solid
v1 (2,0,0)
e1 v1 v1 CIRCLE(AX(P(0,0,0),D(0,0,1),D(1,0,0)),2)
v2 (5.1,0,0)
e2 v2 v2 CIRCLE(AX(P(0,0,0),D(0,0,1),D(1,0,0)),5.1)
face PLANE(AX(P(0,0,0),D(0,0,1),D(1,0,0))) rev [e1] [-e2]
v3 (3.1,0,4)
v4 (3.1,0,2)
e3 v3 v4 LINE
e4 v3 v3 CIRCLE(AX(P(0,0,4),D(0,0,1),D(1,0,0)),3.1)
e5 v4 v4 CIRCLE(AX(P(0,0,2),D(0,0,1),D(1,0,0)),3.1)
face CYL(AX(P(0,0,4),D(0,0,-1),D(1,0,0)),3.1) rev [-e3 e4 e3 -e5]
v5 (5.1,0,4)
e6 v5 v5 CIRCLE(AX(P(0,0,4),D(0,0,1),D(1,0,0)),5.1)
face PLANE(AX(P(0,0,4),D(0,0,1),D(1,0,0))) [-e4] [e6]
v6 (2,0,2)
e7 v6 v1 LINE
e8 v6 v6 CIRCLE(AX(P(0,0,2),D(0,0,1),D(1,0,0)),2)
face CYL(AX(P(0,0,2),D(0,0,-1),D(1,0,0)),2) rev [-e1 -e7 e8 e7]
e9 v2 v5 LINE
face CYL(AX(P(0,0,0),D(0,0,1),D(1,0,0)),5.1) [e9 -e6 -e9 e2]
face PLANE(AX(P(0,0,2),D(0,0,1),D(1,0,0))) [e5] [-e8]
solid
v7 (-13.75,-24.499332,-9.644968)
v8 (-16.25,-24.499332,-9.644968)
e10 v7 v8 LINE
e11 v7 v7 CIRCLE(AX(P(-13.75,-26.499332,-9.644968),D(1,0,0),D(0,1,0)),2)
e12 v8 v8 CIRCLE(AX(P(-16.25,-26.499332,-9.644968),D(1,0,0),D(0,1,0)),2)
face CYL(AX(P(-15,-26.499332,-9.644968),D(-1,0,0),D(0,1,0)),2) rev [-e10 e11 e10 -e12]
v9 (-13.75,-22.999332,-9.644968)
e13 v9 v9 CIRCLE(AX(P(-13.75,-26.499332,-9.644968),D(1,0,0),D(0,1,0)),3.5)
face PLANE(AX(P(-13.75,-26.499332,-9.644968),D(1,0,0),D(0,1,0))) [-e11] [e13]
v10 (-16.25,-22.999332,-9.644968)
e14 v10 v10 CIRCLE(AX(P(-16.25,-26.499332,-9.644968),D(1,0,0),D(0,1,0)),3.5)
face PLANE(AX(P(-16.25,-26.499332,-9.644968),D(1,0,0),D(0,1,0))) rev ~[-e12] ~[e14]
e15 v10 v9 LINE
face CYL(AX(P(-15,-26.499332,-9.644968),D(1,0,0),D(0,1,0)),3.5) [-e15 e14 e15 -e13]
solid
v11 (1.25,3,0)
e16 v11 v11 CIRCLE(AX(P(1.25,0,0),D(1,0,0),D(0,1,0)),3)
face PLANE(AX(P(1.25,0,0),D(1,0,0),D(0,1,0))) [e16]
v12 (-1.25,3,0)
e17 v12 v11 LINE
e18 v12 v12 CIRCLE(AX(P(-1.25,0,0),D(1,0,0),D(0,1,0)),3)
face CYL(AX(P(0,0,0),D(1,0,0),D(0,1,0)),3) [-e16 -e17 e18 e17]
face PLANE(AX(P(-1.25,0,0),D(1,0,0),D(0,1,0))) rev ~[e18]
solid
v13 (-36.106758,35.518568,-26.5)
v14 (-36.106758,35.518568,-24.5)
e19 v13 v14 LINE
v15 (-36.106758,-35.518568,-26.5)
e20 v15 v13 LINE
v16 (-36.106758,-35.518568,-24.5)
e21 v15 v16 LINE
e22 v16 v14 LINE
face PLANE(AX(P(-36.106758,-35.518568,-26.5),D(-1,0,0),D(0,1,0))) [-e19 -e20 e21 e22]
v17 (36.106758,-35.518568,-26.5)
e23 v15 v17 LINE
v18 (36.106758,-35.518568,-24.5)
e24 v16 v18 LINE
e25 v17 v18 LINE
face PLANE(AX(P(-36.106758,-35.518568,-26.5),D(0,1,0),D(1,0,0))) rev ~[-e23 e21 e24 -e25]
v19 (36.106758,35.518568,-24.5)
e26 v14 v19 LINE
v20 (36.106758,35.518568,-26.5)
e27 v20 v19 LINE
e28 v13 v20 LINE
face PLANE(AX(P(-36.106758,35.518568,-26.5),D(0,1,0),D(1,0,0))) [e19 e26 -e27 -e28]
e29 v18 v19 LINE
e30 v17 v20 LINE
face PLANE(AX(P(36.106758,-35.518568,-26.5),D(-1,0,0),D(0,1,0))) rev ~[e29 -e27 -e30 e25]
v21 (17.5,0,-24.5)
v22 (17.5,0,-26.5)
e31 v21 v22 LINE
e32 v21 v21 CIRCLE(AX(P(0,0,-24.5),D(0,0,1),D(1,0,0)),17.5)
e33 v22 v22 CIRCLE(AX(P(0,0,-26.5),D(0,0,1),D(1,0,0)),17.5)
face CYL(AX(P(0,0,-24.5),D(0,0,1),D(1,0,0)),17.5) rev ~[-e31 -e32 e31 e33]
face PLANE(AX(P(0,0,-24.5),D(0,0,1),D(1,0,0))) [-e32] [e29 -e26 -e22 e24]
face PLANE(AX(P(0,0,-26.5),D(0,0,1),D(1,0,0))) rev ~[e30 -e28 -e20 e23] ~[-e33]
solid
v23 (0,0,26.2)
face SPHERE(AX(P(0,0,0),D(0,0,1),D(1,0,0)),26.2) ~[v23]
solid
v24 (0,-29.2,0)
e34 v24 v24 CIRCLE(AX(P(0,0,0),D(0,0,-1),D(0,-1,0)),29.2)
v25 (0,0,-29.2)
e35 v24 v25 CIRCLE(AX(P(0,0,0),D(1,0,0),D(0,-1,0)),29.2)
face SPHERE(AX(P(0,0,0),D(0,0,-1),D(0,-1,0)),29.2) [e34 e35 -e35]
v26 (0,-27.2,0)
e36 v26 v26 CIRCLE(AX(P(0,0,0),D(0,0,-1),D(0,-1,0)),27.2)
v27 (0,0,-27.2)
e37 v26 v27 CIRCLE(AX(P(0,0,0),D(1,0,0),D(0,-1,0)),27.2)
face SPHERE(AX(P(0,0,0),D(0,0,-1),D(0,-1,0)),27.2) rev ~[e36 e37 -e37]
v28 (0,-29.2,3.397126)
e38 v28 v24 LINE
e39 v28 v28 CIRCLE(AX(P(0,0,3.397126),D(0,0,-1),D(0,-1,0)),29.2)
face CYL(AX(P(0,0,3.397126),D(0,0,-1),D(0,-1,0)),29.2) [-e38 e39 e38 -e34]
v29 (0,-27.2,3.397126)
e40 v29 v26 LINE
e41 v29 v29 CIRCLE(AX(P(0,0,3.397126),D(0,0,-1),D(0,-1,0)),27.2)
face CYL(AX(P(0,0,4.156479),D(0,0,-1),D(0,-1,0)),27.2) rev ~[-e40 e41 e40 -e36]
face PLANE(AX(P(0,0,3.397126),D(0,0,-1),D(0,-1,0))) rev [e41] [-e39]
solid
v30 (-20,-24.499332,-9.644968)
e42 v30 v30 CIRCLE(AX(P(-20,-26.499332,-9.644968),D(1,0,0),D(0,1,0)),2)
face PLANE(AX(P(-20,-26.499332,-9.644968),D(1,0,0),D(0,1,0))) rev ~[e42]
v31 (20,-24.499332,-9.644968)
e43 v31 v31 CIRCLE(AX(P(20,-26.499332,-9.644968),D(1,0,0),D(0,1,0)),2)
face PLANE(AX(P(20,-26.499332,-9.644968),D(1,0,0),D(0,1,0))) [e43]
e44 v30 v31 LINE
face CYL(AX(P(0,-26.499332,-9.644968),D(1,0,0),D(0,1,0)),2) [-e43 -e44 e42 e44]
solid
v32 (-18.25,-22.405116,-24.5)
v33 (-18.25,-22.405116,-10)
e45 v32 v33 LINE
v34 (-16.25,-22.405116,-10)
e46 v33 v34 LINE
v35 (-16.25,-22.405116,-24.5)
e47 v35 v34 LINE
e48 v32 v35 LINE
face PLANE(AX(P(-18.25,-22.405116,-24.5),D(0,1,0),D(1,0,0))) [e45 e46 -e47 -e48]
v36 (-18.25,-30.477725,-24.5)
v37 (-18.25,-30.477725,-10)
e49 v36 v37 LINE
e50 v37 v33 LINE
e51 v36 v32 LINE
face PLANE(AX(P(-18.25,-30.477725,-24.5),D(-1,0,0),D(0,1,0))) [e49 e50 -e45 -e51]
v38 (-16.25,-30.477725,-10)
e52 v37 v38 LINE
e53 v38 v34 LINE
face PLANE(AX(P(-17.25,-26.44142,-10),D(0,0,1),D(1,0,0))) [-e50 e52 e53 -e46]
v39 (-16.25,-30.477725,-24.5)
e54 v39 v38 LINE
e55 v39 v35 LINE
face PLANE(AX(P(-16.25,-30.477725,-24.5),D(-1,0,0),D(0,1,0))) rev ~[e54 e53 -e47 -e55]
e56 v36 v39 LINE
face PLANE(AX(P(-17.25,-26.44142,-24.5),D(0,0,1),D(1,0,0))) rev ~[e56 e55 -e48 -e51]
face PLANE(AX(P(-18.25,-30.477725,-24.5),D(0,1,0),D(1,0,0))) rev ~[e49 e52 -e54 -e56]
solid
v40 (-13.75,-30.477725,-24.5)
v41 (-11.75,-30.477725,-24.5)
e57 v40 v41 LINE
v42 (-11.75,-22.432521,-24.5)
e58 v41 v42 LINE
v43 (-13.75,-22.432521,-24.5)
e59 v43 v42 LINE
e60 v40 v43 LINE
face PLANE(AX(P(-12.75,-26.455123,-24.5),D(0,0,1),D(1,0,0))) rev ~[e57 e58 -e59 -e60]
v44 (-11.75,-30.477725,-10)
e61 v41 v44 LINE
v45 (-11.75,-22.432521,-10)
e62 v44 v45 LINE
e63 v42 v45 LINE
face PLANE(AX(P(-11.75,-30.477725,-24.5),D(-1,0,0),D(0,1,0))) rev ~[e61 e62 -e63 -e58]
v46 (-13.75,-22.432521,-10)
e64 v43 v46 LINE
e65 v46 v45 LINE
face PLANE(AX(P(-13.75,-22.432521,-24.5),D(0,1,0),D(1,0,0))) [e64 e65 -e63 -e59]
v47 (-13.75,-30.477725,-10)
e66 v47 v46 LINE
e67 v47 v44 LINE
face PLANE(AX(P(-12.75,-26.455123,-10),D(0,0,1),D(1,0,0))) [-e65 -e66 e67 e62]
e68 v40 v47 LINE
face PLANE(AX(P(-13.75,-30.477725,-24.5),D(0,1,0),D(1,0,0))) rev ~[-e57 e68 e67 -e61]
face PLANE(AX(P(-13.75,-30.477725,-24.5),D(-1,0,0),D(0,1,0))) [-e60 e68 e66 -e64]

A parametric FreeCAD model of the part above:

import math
import FreeCAD as App
import Part
import Sketcher
from FreeCAD import Vector

doc = App.newDocument("Part")
body = doc.addObject("PartDesign::Body", "Body")

sketch1 = doc.addObject("Sketcher::SketchObject", "Sketch")
body.addObject(sketch1)
sketch1.AttachmentSupport = (doc.XZ_Plane, [""])
sketch1.MapMode = "FlatFace"
sketch1.addGeometry(Part.LineSegment(Vector(0, 26, 0), Vector(0, -26, 0)), False)
sketch1.addGeometry(Part.ArcOfCircle(Part.Circle(Vector(0, 0, 0), Vector(0, 0, 1), 26), math.radians(-90), math.radians(90)), False)
sketch1.addConstraint(Sketcher.Constraint("Coincident", 0, 1, 1, 2))
sketch1.addConstraint(Sketcher.Constraint("Coincident", 1, 1, 0, 2))
sketch1.addConstraint(Sketcher.Constraint("Vertical", 0))
sketch1.addConstraint(Sketcher.Constraint("Coincident", 1, 3, -1, 1))
sketch1.addConstraint(Sketcher.Constraint("PointOnObject", 0, 1, -2))
sketch1.addConstraint(Sketcher.Constraint("Radius", 1, 26.2))
revolution = doc.addObject("PartDesign::Revolution", "Revolution")
body.addObject(revolution)
revolution.Profile = sketch1
revolution.ReferenceAxis = (sketch1, ["V_Axis"])
revolution.Angle = 360
body2 = doc.addObject("PartDesign::Body", "Body001")

sketch2 = doc.addObject("Sketcher::SketchObject", "Sketch001")
body2.addObject(sketch2)
sketch2.AttachmentSupport = (doc.getObject("XY_Plane001"), [""])
sketch2.MapMode = "FlatFace"
sketch2.addGeometry(Part.LineSegment(Vector(-36, 36, 0), Vector(-36, -36, 0)), False)
sketch2.addGeometry(Part.LineSegment(Vector(-36, -36, 0), Vector(36, -36, 0)), False)
sketch2.addGeometry(Part.LineSegment(Vector(36, -36, 0), Vector(36, 36, 0)), False)
sketch2.addGeometry(Part.LineSegment(Vector(36, 36, 0), Vector(-36, 36, 0)), False)
sketch2.addConstraint(Sketcher.Constraint("Coincident", 0, 2, 1, 1))
sketch2.addConstraint(Sketcher.Constraint("Coincident", 1, 2, 2, 1))
sketch2.addConstraint(Sketcher.Constraint("Coincident", 2, 2, 3, 1))
sketch2.addConstraint(Sketcher.Constraint("Coincident", 3, 2, 0, 1))
sketch2.addConstraint(Sketcher.Constraint("Vertical", 0))
sketch2.addConstraint(Sketcher.Constraint("Horizontal", 1))
sketch2.addConstraint(Sketcher.Constraint("Vertical", 2))
sketch2.addConstraint(Sketcher.Constraint("Horizontal", 3))
sketch2.addConstraint(Sketcher.Constraint("Symmetric", 0, 2, 2, 2, -1, 1))
sketch2.addConstraint(Sketcher.Constraint("DistanceX", 1, 1, 1, 2, 72.213516))
sketch2.addConstraint(Sketcher.Constraint("DistanceY", 0, 2, 0, 1, 71.037136))
pad1 = doc.addObject("PartDesign::Pad", "Pad")
body2.addObject(pad1)
pad1.Profile = sketch2
pad1.Length = 2

sketch3 = doc.addObject("Sketcher::SketchObject", "Sketch002")
body2.addObject(sketch3)
sketch3.AttachmentSupport = (doc.getObject("XY_Plane001"), [""])
sketch3.MapMode = "FlatFace"
sketch3.AttachmentOffset = App.Placement(Vector(0, 0, 2), App.Rotation())
sketch3.addGeometry(Part.Circle(Vector(0, 0, 0), Vector(0, 0, 1), 18), False)
sketch3.addConstraint(Sketcher.Constraint("Coincident", 0, 3, -1, 1))
sketch3.addConstraint(Sketcher.Constraint("Diameter", 0, 35.0))
pocket1 = doc.addObject("PartDesign::Pocket", "Pocket")
body2.addObject(pocket1)
pocket1.Profile = sketch3
pocket1.Length = 25
body3 = doc.addObject("PartDesign::Body", "Body002")
doc.recompute()

body2.Placement = App.Placement(Vector(0, 0, -26.5), App.Rotation(Vector(0, 0, 1), 0))
boolean = doc.addObject("PartDesign::Boolean", "Boolean")
body3.addObject(boolean)
boolean.Type = "Fuse"
boolean.addObjects([body2])
body4 = doc.addObject("PartDesign::Body", "Body003")

sketch4 = doc.addObject("Sketcher::SketchObject", "Sketch003")
body4.addObject(sketch4)
sketch4.AttachmentSupport = (doc.getObject("YZ_Plane003"), [""])
sketch4.MapMode = "FlatFace"
sketch4.addGeometry(Part.Circle(Vector(0, 0, 0), Vector(0, 0, 1), 3.5), False)
sketch4.addGeometry(Part.Circle(Vector(0, 0, 0), Vector(0, 0, 1), 2), False)
sketch4.addConstraint(Sketcher.Constraint("Coincident", 0, 3, -1, 1))
sketch4.addConstraint(Sketcher.Constraint("Coincident", 1, 3, -1, 1))
sketch4.addConstraint(Sketcher.Constraint("Diameter", 0, 7.0))
sketch4.addConstraint(Sketcher.Constraint("Diameter", 1, 4.0))
pad2 = doc.addObject("PartDesign::Pad", "Pad001")
body4.addObject(pad2)
pad2.Profile = sketch4
pad2.Length = 2.5
pad2.Midplane = True
body5 = doc.addObject("PartDesign::Body", "Body004")

sketch5 = doc.addObject("Sketcher::SketchObject", "Sketch004")
body5.addObject(sketch5)
sketch5.AttachmentSupport = (doc.getObject("YZ_Plane004"), [""])
sketch5.MapMode = "FlatFace"
sketch5.addGeometry(Part.Circle(Vector(0, 0, 0), Vector(0, 0, 1), 2), False)
sketch5.addConstraint(Sketcher.Constraint("Coincident", 0, 3, -1, 1))
sketch5.addConstraint(Sketcher.Constraint("Diameter", 0, 4.0))
pad3 = doc.addObject("PartDesign::Pad", "Pad002")
body5.addObject(pad3)
pad3.Profile = sketch5
pad3.Length = 40
pad3.Midplane = True
body6 = doc.addObject("PartDesign::Body", "Body005")
doc.recompute()

body4.Placement = App.Placement(Vector(0, -26.499332, -9.644968), App.Rotation(Vector(0, 0, 1), 0))
boolean2 = doc.addObject("PartDesign::Boolean", "Boolean001")
body6.addObject(boolean2)
boolean2.Type = "Fuse"
boolean2.addObjects([body4])
body7 = doc.addObject("PartDesign::Body", "Body006")
doc.recompute()

body5.Placement = App.Placement(Vector(0, -26.499332, -9.644968), App.Rotation(Vector(0, 0, 1), 0))
boolean3 = doc.addObject("PartDesign::Boolean", "Boolean002")
body7.addObject(boolean3)
boolean3.Type = "Fuse"
boolean3.addObjects([body5])
body8 = doc.addObject("PartDesign::Body", "Body007")
doc.recompute()

body6.Placement = App.Placement(Vector(-15, 0, 0), App.Rotation(Vector(0, 0, 1), 0))
boolean4 = doc.addObject("PartDesign::Boolean", "Boolean003")
body8.addObject(boolean4)
boolean4.Type = "Fuse"
boolean4.addObjects([body6])
body9 = doc.addObject("PartDesign::Body", "Body008")

sketch6 = doc.addObject("Sketcher::SketchObject", "Sketch005")
body9.addObject(sketch6)
sketch6.AttachmentSupport = (doc.getObject("YZ_Plane008"), [""])
sketch6.MapMode = "FlatFace"
sketch6.addGeometry(Part.Circle(Vector(0, 0, 0), Vector(0, 0, 1), 3), False)
sketch6.addConstraint(Sketcher.Constraint("Coincident", 0, 3, -1, 1))
sketch6.addConstraint(Sketcher.Constraint("Diameter", 0, 6.0))
pad4 = doc.addObject("PartDesign::Pad", "Pad003")
body9.addObject(pad4)
pad4.Profile = sketch6
pad4.Length = 2.5
pad4.Midplane = True
body10 = doc.addObject("PartDesign::Body", "Body009")

sketch7 = doc.addObject("Sketcher::SketchObject", "Sketch006")
body10.addObject(sketch7)
sketch7.AttachmentSupport = (doc.getObject("XZ_Plane009"), [""])
sketch7.MapMode = "FlatFace"
sketch7.addGeometry(Part.LineSegment(Vector(5.1, 0, 0), Vector(5.1, 4, 0)), False)
sketch7.addGeometry(Part.LineSegment(Vector(5.1, 4, 0), Vector(3.1, 4, 0)), False)
sketch7.addGeometry(Part.LineSegment(Vector(3.1, 4, 0), Vector(3.1, 2, 0)), False)
sketch7.addGeometry(Part.LineSegment(Vector(3.1, 2, 0), Vector(2, 2, 0)), False)
sketch7.addGeometry(Part.LineSegment(Vector(2, 2, 0), Vector(2, 0, 0)), False)
sketch7.addGeometry(Part.LineSegment(Vector(2, 0, 0), Vector(5.1, 0, 0)), False)
sketch7.addConstraint(Sketcher.Constraint("Coincident", 0, 2, 1, 1))
sketch7.addConstraint(Sketcher.Constraint("Coincident", 1, 2, 2, 1))
sketch7.addConstraint(Sketcher.Constraint("Coincident", 2, 2, 3, 1))
sketch7.addConstraint(Sketcher.Constraint("Coincident", 3, 2, 4, 1))
sketch7.addConstraint(Sketcher.Constraint("Coincident", 4, 2, 5, 1))
sketch7.addConstraint(Sketcher.Constraint("Coincident", 5, 2, 0, 1))
sketch7.addConstraint(Sketcher.Constraint("Vertical", 0))
sketch7.addConstraint(Sketcher.Constraint("Horizontal", 1))
sketch7.addConstraint(Sketcher.Constraint("Vertical", 2))
sketch7.addConstraint(Sketcher.Constraint("Horizontal", 3))
sketch7.addConstraint(Sketcher.Constraint("Vertical", 4))
sketch7.addConstraint(Sketcher.Constraint("Horizontal", 5))
sketch7.addConstraint(Sketcher.Constraint("PointOnObject", 4, 2, -1))
sketch7.addConstraint(Sketcher.Constraint("Equal", 1, 2))
sketch7.addConstraint(Sketcher.Constraint("Equal", 2, 4))
sketch7.addConstraint(Sketcher.Constraint("DistanceX", 1, 2, 1, 1, 2.0))
sketch7.addConstraint(Sketcher.Constraint("DistanceX", 3, 2, 3, 1, 1.1))
sketch7.addConstraint(Sketcher.Constraint("DistanceX", -1, 1, 3, 2, 2.0))
revolution2 = doc.addObject("PartDesign::Revolution", "Revolution001")
body10.addObject(revolution2)
revolution2.Profile = sketch7
revolution2.ReferenceAxis = (sketch7, ["V_Axis"])
revolution2.Angle = 360
body11 = doc.addObject("PartDesign::Body", "Body010")

sketch8 = doc.addObject("Sketcher::SketchObject", "Sketch007")
body11.addObject(sketch8)
sketch8.AttachmentSupport = (doc.getObject("YZ_Plane010"), [""])
sketch8.MapMode = "FlatFace"
sketch8.addGeometry(Part.LineSegment(Vector(0, -29.2, 0), Vector(0, 3.4, 0)), False)
sketch8.addGeometry(Part.LineSegment(Vector(0, 3.4, 0), Vector(-29.2, 3.4, 0)), False)
sketch8.addGeometry(Part.LineSegment(Vector(-29.2, 3.4, 0), Vector(-29.2, 0, 0)), False)
sketch8.addGeometry(Part.ArcOfCircle(Part.Circle(Vector(0, 0, 0), Vector(0, 0, 1), 29.2), math.radians(180), math.radians(270)), False)
sketch8.addConstraint(Sketcher.Constraint("Coincident", 0, 2, 1, 1))
sketch8.addConstraint(Sketcher.Constraint("Coincident", 1, 2, 2, 1))
sketch8.addConstraint(Sketcher.Constraint("Tangent", 2, 2, 3, 1))
sketch8.addConstraint(Sketcher.Constraint("Coincident", 3, 2, 0, 1))
sketch8.addConstraint(Sketcher.Constraint("Vertical", 0))
sketch8.addConstraint(Sketcher.Constraint("Horizontal", 1))
sketch8.addConstraint(Sketcher.Constraint("Vertical", 2))
sketch8.addConstraint(Sketcher.Constraint("Coincident", 3, 3, -1, 1))
sketch8.addConstraint(Sketcher.Constraint("PointOnObject", 0, 2, -2))
sketch8.addConstraint(Sketcher.Constraint("Radius", 3, 29.2))
sketch8.addConstraint(Sketcher.Constraint("DistanceY", 0, 1, 0, 2, 32.597126))
revolution3 = doc.addObject("PartDesign::Revolution", "Revolution002")
body11.addObject(revolution3)
revolution3.Profile = sketch8
revolution3.ReferenceAxis = (sketch8, ["V_Axis"])
revolution3.Angle = 360

sketch9 = doc.addObject("Sketcher::SketchObject", "Sketch008")
body11.addObject(sketch9)
sketch9.AttachmentSupport = (doc.getObject("YZ_Plane010"), [""])
sketch9.MapMode = "FlatFace"
sketch9.addGeometry(Part.LineSegment(Vector(0, -27.2, 0), Vector(0, 4.2, 0)), False)
sketch9.addGeometry(Part.LineSegment(Vector(0, 4.2, 0), Vector(-27.2, 4.2, 0)), False)
sketch9.addGeometry(Part.LineSegment(Vector(-27.2, 4.2, 0), Vector(-27.2, 0, 0)), False)
sketch9.addGeometry(Part.ArcOfCircle(Part.Circle(Vector(0, 0, 0), Vector(0, 0, 1), 27.2), math.radians(180), math.radians(270)), False)
sketch9.addConstraint(Sketcher.Constraint("Coincident", 0, 2, 1, 1))
sketch9.addConstraint(Sketcher.Constraint("Coincident", 1, 2, 2, 1))
sketch9.addConstraint(Sketcher.Constraint("Tangent", 2, 2, 3, 1))
sketch9.addConstraint(Sketcher.Constraint("Coincident", 3, 2, 0, 1))
sketch9.addConstraint(Sketcher.Constraint("Vertical", 0))
sketch9.addConstraint(Sketcher.Constraint("Horizontal", 1))
sketch9.addConstraint(Sketcher.Constraint("Vertical", 2))
sketch9.addConstraint(Sketcher.Constraint("Coincident", 3, 3, -1, 1))
sketch9.addConstraint(Sketcher.Constraint("PointOnObject", 0, 2, -2))
sketch9.addConstraint(Sketcher.Constraint("Radius", 3, 27.2))
sketch9.addConstraint(Sketcher.Constraint("DistanceY", 0, 1, 0, 2, 31.356479))
groove = doc.addObject("PartDesign::Groove", "Groove")
body11.addObject(groove)
groove.Profile = sketch9
groove.ReferenceAxis = (sketch9, ["V_Axis"])
groove.Angle = 360
body12 = doc.addObject("PartDesign::Body", "Body011")

sketch10 = doc.addObject("Sketcher::SketchObject", "Sketch009")
body12.addObject(sketch10)
sketch10.AttachmentSupport = (doc.getObject("XY_Plane011"), [""])
sketch10.MapMode = "FlatFace"
sketch10.AttachmentOffset = App.Placement(Vector(0, 0, -24.5), App.Rotation())
sketch10.addGeometry(Part.LineSegment(Vector(-13.8, -22.4, 0), Vector(-13.8, -30.5, 0)), False)
sketch10.addGeometry(Part.LineSegment(Vector(-13.8, -30.5, 0), Vector(-11.8, -30.5, 0)), False)
sketch10.addGeometry(Part.LineSegment(Vector(-11.8, -30.5, 0), Vector(-11.8, -22.4, 0)), False)
sketch10.addGeometry(Part.LineSegment(Vector(-11.8, -22.4, 0), Vector(-13.8, -22.4, 0)), False)
sketch10.addConstraint(Sketcher.Constraint("Coincident", 0, 2, 1, 1))
sketch10.addConstraint(Sketcher.Constraint("Coincident", 1, 2, 2, 1))
sketch10.addConstraint(Sketcher.Constraint("Coincident", 2, 2, 3, 1))
sketch10.addConstraint(Sketcher.Constraint("Coincident", 3, 2, 0, 1))
sketch10.addConstraint(Sketcher.Constraint("Vertical", 0))
sketch10.addConstraint(Sketcher.Constraint("Horizontal", 1))
sketch10.addConstraint(Sketcher.Constraint("Vertical", 2))
sketch10.addConstraint(Sketcher.Constraint("Horizontal", 3))
sketch10.addConstraint(Sketcher.Constraint("DistanceX", 1, 1, 1, 2, 2.0))
sketch10.addConstraint(Sketcher.Constraint("DistanceX", 0, 2, -1, 1, 13.75))
sketch10.addConstraint(Sketcher.Constraint("DistanceY", 0, 2, 0, 1, 8.045204))
sketch10.addConstraint(Sketcher.Constraint("DistanceY", 2, 2, -1, 1, 22.432521))
pad5 = doc.addObject("PartDesign::Pad", "Pad004")
body12.addObject(pad5)
pad5.Profile = sketch10
pad5.Length = 14.5
body13 = doc.addObject("PartDesign::Body", "Body012")

sketch11 = doc.addObject("Sketcher::SketchObject", "Sketch010")
body13.addObject(sketch11)
sketch11.AttachmentSupport = (doc.getObject("XY_Plane012"), [""])
sketch11.MapMode = "FlatFace"
sketch11.AttachmentOffset = App.Placement(Vector(0, 0, -24.5), App.Rotation())
sketch11.addGeometry(Part.LineSegment(Vector(-18.2, -22.4, 0), Vector(-18.2, -30.5, 0)), False)
sketch11.addGeometry(Part.LineSegment(Vector(-18.2, -30.5, 0), Vector(-16.2, -30.5, 0)), False)
sketch11.addGeometry(Part.LineSegment(Vector(-16.2, -30.5, 0), Vector(-16.2, -22.4, 0)), False)
sketch11.addGeometry(Part.LineSegment(Vector(-16.2, -22.4, 0), Vector(-18.2, -22.4, 0)), False)
sketch11.addConstraint(Sketcher.Constraint("Coincident", 0, 2, 1, 1))
sketch11.addConstraint(Sketcher.Constraint("Coincident", 1, 2, 2, 1))
sketch11.addConstraint(Sketcher.Constraint("Coincident", 2, 2, 3, 1))
sketch11.addConstraint(Sketcher.Constraint("Coincident", 3, 2, 0, 1))
sketch11.addConstraint(Sketcher.Constraint("Vertical", 0))
sketch11.addConstraint(Sketcher.Constraint("Horizontal", 1))
sketch11.addConstraint(Sketcher.Constraint("Vertical", 2))
sketch11.addConstraint(Sketcher.Constraint("Horizontal", 3))
sketch11.addConstraint(Sketcher.Constraint("DistanceX", 1, 1, 1, 2, 2.0))
sketch11.addConstraint(Sketcher.Constraint("DistanceX", 0, 2, -1, 1, 18.25))
sketch11.addConstraint(Sketcher.Constraint("DistanceY", 0, 2, 0, 1, 8.072609))
sketch11.addConstraint(Sketcher.Constraint("DistanceY", 0, 2, -1, 1, 30.477725))
pad6 = doc.addObject("PartDesign::Pad", "Pad005")
body13.addObject(pad6)
pad6.Profile = sketch11
pad6.Length = 14.5

doc.recompute()
